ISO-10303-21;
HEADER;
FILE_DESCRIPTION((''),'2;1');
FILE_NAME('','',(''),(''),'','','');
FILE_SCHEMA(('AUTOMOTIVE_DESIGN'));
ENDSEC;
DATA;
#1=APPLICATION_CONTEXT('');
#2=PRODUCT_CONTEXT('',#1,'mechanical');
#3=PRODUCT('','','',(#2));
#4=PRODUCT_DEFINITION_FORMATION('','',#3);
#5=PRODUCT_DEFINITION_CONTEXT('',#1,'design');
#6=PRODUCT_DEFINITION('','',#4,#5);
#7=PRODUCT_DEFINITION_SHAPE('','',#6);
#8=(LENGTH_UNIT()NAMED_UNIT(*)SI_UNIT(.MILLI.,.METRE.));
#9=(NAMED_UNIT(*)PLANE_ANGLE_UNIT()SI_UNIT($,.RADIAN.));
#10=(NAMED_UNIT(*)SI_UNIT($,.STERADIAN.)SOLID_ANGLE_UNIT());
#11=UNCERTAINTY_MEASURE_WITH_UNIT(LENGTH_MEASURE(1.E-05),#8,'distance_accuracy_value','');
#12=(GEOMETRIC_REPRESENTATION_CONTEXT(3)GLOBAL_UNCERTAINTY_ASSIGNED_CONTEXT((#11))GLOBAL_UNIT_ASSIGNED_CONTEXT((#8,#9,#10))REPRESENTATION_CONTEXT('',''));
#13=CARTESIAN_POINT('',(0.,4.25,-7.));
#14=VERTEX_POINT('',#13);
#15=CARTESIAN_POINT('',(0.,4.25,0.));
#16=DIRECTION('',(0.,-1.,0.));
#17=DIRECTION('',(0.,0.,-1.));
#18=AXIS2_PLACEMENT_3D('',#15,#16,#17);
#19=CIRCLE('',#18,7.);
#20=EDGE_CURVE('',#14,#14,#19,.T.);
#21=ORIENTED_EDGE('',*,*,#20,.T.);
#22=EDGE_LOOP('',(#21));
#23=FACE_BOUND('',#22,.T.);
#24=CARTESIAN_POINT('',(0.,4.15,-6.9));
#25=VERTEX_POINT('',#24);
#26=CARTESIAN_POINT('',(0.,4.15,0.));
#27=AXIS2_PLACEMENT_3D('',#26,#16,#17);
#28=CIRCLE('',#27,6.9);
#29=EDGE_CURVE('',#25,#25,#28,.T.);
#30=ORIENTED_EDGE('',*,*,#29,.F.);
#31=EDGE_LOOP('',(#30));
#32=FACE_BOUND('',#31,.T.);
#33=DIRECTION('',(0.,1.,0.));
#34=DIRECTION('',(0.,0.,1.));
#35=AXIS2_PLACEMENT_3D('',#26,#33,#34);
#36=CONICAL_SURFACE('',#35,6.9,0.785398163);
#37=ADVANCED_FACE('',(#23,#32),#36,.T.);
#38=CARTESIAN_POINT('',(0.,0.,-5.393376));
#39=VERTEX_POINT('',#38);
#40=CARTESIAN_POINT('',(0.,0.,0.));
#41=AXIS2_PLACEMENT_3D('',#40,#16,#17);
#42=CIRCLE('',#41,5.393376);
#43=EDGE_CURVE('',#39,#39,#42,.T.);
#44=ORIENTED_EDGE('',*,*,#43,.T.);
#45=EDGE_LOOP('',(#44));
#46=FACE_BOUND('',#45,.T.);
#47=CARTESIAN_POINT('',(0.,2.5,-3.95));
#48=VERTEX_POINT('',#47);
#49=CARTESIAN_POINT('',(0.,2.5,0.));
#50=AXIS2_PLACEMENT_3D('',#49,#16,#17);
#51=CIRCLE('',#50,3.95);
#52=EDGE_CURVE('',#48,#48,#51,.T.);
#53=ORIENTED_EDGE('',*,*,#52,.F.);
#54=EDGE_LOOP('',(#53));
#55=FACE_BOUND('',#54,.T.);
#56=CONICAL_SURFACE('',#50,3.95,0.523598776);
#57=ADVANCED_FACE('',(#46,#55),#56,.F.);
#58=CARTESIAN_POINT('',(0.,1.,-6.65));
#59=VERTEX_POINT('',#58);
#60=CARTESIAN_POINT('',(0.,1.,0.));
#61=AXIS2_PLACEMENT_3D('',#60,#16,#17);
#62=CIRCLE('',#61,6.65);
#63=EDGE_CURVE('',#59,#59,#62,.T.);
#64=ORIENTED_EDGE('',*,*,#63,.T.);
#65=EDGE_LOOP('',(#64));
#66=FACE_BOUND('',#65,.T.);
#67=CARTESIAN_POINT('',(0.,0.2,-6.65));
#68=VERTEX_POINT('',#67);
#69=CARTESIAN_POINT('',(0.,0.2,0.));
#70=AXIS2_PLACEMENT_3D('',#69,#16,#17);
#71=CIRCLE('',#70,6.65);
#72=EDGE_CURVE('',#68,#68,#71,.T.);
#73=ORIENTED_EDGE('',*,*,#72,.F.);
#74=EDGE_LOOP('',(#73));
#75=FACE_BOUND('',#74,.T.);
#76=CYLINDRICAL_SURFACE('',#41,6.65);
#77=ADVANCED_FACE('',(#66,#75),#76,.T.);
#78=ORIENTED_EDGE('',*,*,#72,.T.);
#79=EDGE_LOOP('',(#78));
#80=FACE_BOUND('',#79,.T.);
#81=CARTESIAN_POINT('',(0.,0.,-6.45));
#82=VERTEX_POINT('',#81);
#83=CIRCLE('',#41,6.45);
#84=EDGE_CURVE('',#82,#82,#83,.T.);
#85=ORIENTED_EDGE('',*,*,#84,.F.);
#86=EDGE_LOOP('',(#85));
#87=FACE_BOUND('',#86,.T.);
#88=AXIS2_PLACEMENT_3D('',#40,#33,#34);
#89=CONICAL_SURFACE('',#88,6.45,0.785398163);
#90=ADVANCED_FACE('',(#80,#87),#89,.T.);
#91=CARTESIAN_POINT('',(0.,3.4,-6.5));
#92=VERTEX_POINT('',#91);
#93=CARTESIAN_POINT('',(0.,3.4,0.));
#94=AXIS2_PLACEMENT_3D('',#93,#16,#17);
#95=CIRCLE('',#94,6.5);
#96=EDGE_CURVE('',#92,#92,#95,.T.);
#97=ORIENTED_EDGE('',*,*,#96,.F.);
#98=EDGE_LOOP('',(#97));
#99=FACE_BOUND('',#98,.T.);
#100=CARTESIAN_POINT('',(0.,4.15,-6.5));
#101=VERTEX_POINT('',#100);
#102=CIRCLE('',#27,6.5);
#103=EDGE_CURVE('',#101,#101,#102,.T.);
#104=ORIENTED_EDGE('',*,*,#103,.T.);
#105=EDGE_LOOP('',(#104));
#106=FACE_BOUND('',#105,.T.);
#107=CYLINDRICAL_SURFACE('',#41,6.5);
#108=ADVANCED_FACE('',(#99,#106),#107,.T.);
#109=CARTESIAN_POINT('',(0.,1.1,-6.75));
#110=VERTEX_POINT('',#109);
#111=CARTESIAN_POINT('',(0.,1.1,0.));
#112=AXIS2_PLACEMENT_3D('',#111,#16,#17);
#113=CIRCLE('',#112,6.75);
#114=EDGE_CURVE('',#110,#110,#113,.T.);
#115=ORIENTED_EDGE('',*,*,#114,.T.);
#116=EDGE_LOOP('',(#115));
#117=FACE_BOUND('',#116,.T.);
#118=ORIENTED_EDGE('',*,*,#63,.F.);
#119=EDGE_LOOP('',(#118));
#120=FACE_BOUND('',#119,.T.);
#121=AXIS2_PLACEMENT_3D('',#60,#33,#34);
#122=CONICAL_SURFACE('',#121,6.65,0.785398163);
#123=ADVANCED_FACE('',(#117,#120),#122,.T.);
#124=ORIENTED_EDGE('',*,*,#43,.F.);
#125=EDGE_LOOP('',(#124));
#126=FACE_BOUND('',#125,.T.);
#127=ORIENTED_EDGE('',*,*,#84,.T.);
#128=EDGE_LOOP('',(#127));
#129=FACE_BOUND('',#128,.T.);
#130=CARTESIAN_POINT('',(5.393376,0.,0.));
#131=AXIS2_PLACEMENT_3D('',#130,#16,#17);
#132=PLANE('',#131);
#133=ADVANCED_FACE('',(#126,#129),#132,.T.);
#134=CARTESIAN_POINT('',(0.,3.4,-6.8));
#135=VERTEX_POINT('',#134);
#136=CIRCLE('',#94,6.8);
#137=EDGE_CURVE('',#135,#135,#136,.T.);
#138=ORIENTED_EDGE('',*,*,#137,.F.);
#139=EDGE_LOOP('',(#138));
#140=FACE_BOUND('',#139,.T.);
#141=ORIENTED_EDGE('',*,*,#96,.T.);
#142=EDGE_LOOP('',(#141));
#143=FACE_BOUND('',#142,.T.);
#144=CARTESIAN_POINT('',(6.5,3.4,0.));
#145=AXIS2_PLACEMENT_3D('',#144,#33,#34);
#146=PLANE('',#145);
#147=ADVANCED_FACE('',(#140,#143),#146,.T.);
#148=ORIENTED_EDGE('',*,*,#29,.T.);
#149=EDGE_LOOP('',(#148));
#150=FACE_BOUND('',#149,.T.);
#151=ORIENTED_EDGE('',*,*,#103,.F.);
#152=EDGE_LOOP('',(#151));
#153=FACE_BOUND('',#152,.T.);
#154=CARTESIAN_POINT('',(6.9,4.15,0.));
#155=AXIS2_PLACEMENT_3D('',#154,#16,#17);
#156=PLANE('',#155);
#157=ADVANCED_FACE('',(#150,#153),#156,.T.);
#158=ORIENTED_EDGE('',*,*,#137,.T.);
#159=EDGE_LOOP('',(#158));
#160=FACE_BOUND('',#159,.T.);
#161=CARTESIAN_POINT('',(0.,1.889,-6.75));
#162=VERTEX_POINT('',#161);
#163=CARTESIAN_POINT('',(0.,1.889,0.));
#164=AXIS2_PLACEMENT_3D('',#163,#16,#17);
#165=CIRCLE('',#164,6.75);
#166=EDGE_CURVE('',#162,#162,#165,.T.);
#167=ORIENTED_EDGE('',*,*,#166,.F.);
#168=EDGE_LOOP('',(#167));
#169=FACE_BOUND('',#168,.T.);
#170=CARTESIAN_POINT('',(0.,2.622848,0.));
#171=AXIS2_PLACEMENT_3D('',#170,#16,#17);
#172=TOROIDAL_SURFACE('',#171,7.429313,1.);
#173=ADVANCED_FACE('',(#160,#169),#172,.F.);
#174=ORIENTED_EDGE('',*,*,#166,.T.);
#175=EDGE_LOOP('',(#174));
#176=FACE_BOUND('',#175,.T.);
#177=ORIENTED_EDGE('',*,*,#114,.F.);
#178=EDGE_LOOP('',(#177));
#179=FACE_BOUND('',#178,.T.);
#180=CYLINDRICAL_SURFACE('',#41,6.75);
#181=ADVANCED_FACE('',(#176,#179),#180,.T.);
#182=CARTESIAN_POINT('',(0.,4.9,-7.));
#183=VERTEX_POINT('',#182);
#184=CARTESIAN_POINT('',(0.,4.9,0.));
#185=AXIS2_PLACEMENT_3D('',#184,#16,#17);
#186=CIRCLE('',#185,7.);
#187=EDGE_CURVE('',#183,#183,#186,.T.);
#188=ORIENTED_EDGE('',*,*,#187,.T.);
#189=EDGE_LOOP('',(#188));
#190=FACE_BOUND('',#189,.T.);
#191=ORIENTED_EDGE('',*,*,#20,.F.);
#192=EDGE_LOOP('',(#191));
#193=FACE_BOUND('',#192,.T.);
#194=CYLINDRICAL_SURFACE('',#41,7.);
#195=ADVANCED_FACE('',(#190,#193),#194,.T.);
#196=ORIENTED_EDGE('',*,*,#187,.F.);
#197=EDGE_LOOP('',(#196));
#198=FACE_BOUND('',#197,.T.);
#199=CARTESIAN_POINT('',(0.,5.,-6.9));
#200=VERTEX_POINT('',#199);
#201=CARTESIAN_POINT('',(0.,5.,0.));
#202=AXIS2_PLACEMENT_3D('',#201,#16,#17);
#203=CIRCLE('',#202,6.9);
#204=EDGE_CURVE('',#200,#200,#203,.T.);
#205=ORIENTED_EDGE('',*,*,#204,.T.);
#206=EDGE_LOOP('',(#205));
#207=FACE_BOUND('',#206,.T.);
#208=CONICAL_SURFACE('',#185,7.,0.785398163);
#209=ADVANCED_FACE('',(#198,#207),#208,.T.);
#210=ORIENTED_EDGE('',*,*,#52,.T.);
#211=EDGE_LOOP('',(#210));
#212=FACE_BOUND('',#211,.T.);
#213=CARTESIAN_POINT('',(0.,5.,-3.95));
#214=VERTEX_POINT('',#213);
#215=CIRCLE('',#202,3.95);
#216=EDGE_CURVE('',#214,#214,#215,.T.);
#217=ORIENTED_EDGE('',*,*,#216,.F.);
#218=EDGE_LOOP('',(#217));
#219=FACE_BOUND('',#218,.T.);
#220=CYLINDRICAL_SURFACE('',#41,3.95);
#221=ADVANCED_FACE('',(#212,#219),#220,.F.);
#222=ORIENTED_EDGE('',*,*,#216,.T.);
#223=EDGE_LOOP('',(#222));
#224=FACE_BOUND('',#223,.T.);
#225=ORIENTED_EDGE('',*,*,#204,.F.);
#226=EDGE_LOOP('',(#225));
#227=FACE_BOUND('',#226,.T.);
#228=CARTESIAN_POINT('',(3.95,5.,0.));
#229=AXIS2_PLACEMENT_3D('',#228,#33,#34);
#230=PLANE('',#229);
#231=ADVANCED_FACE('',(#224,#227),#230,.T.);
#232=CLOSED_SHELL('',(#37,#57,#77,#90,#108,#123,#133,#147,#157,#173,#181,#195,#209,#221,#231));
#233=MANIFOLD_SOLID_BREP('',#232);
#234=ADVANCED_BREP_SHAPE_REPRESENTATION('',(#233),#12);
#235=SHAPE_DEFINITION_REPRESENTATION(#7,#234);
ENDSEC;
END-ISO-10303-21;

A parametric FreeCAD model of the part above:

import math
import FreeCAD as App
import Part
import Sketcher

V = App.Vector
Q = App.Units.Quantity

doc = App.newDocument("Part")
params = doc.addObject("Spreadsheet::Sheet", "Params")
for row, (alias, value) in enumerate([
    ("sketch1_radius", "1 mm"),
    ("sketch1_width", "0.3 mm"),
    ("sketch1_width2", "0.4 mm"),
    ("sketch1_height", "0.8 mm"),
    ("sketch1_height2", "2.5 mm"),
    ("revolution_angle", "360 deg"),
], start=1):
    params.set(f"A{row}", alias)
    params.set(f"B{row}", "=" + value)
    params.setAlias(f"B{row}", alias)

body = doc.addObject("PartDesign::Body", "Body")

# Sketch on XY plane
sketch1 = body.newObject("Sketcher::SketchObject", "Sketch")
sketch1.AttachmentSupport = (doc.getObject("XY_Plane"), [""])
sketch1.MapMode = "FlatFace"
sketch1.addGeometry([
    Part.LineSegment(V(6.45, 0, 0), V(6.65, 0.2, 0)),  # 0
    Part.LineSegment(V(6.65, 0.2, 0), V(6.65, 1, 0)),  # 1
    Part.LineSegment(V(6.65, 1, 0), V(6.75, 1.1, 0)),  # 2
    Part.LineSegment(V(6.75, 1.1, 0), V(6.75, 1.889, 0)),  # 3
    Part.ArcOfCircle(Part.Circle(V(7.429313, 2.622848, 0), V(0, 0, 1), 1), math.radians(128.999481), math.radians(227.209991)),  # 4
    Part.LineSegment(V(6.8, 3.4, 0), V(6.5, 3.4, 0)),  # 5
    Part.LineSegment(V(6.5, 3.4, 0), V(6.5, 4.15, 0)),  # 6
    Part.LineSegment(V(6.5, 4.15, 0), V(6.9, 4.15, 0)),  # 7
    Part.LineSegment(V(6.9, 4.15, 0), V(7, 4.25, 0)),  # 8
    Part.LineSegment(V(7, 4.25, 0), V(7, 4.9, 0)),  # 9
    Part.LineSegment(V(7, 4.9, 0), V(6.9, 5, 0)),  # 10
    Part.LineSegment(V(6.9, 5, 0), V(3.95, 5, 0)),  # 11
    Part.LineSegment(V(3.95, 5, 0), V(3.95, 2.5, 0)),  # 12
    Part.LineSegment(V(3.95, 2.5, 0), V(5.393376, 0, 0)),  # 13
    Part.LineSegment(V(5.393376, 0, 0), V(6.45, 0, 0)),  # 14
], False)
sketch1.addConstraint([
    Sketcher.Constraint("Coincident", 0, 2, 1, 1),
    Sketcher.Constraint("Coincident", 1, 2, 2, 1),
    Sketcher.Constraint("Coincident", 2, 2, 3, 1),
    Sketcher.Constraint("Coincident", 3, 2, 4, 2),
    Sketcher.Constraint("Coincident", 4, 1, 5, 1),
    Sketcher.Constraint("Coincident", 5, 2, 6, 1),
    Sketcher.Constraint("Coincident", 6, 2, 7, 1),
    Sketcher.Constraint("Coincident", 7, 2, 8, 1),
    Sketcher.Constraint("Coincident", 8, 2, 9, 1),
    Sketcher.Constraint("Coincident", 9, 2, 10, 1),
    Sketcher.Constraint("Coincident", 10, 2, 11, 1),
    Sketcher.Constraint("Coincident", 11, 2, 12, 1),
    Sketcher.Constraint("Coincident", 12, 2, 13, 1),
    Sketcher.Constraint("Coincident", 13, 2, 14, 1),
    Sketcher.Constraint("Coincident", 14, 2, 0, 1),
    Sketcher.Constraint("Vertical", 1),
    Sketcher.Constraint("Vertical", 3),
    Sketcher.Constraint("Horizontal", 5),
    Sketcher.Constraint("Vertical", 6),
    Sketcher.Constraint("Horizontal", 7),
    Sketcher.Constraint("Vertical", 9),
    Sketcher.Constraint("Horizontal", 11),
    Sketcher.Constraint("Vertical", 12),
    Sketcher.Constraint("Horizontal", 14),
    Sketcher.Constraint("PointOnObject", 13, 2, -1),
    Sketcher.Constraint("Parallel", 0, 2),
    Sketcher.Constraint("Parallel", 2, 8),
    Sketcher.Constraint("Perpendicular", 8, 10),
    Sketcher.Constraint("Vertical", 7, 2, 10, 2),
    Sketcher.Constraint("Equal", 2, 8),
    Sketcher.Constraint("Equal", 8, 10),
    Sketcher.Constraint("Radius", 4, 1.0),
    Sketcher.Constraint("Angle", 13, Q("-60 deg")),
    Sketcher.Constraint("DistanceX", 5, 2, 5, 1, 0.3),
    Sketcher.Constraint("DistanceX", 7, 1, 7, 2, 0.4),
    Sketcher.Constraint("DistanceY", 1, 1, 1, 2, 0.8),
    Sketcher.Constraint("DistanceY", 12, 2, 12, 1, 2.5),
    Sketcher.Constraint("DistanceY", -1, 1, 1, 2, 1.0),
    Sketcher.Constraint("DistanceX", -1, 1, 8, 2, 7.0),
    Sketcher.Constraint("DistanceY", -1, 1, 10, 2, 5.0),
    Sketcher.Constraint("DistanceX", 11, 2, 11, 1, 2.95),
    Sketcher.Constraint("DistanceY", 6, 1, 6, 2, 0.75),
    Sketcher.Constraint("DistanceY", 9, 1, 9, 2, 0.65),
    Sketcher.Constraint("DistanceY", -1, 1, 2, 2, 1.1),
    Sketcher.Constraint("DistanceX", 12, 2, 3, 2, 2.8),
    Sketcher.Constraint("DistanceY", 3, 1, 3, 2, 0.789),
])
sketch1.setExpression("Constraints[31]", "Params.sketch1_radius")
sketch1.setExpression("Constraints[33]", "Params.sketch1_width")
sketch1.setExpression("Constraints[34]", "Params.sketch1_width2")
sketch1.setExpression("Constraints[35]", "Params.sketch1_height")
sketch1.setExpression("Constraints[36]", "Params.sketch1_height2")
revolution = body.newObject("PartDesign::Revolution", "Revolution")
revolution.Profile = sketch1
revolution.ReferenceAxis = (sketch1, ["V_Axis"])
revolution.setExpression("Angle", "Params.revolution_angle")

doc.recompute()
